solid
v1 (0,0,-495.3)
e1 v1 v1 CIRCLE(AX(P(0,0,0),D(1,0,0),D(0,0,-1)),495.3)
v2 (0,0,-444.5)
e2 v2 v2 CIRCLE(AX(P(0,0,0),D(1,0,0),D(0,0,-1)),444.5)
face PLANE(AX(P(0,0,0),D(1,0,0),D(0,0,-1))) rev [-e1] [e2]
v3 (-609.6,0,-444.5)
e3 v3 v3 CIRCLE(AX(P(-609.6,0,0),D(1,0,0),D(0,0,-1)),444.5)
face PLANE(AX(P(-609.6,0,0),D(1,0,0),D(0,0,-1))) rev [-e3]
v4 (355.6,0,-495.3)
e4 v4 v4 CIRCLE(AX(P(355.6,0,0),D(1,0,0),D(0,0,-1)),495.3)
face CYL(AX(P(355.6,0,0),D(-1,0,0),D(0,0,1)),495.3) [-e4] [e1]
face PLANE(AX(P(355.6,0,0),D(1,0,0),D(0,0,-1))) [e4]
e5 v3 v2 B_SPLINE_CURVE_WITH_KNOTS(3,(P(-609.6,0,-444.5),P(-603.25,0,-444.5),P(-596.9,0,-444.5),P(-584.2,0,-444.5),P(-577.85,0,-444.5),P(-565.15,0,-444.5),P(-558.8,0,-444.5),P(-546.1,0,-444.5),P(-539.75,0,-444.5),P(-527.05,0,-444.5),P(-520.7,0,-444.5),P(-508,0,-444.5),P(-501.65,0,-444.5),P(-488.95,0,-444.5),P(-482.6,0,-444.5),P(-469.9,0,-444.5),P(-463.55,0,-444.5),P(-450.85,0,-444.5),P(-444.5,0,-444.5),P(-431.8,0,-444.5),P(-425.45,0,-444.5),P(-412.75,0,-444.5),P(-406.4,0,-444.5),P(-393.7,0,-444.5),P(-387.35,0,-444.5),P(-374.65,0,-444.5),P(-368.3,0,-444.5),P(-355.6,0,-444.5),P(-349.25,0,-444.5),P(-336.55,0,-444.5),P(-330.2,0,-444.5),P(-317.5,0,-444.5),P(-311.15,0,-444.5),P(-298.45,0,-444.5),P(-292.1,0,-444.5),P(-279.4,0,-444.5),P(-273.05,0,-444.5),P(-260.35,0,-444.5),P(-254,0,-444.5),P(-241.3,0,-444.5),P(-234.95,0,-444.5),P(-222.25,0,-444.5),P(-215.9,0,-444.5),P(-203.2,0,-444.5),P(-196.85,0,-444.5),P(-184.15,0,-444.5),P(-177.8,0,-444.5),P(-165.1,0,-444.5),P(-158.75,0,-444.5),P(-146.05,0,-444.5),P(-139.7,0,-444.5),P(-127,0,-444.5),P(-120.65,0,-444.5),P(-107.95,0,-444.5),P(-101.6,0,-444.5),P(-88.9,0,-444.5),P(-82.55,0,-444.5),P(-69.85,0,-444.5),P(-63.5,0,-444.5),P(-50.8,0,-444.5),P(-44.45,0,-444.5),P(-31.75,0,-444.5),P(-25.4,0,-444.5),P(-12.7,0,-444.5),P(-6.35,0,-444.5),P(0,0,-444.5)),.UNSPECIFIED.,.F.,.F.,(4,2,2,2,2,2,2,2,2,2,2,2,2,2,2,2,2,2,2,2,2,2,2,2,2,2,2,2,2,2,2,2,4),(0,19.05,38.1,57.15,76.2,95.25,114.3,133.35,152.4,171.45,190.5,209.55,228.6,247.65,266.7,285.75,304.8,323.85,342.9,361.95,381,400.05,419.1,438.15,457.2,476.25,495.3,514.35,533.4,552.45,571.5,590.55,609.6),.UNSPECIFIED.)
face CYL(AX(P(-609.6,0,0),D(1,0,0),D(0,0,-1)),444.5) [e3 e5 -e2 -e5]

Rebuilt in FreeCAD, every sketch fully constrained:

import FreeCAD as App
import Part
import Sketcher
Q = App.Units.Quantity

doc = App.newDocument("Part")
body = doc.addObject("PartDesign::Body", "Body")

# Sketch on YZ plane
sketch1 = body.newObject("Sketcher::SketchObject", "Sketch")
sketch1.AttachmentSupport = (doc.getObject("YZ_Plane"), [""])
sketch1.MapMode = "FlatFace"
sketch1.addGeometry(Part.Circle(App.Vector(0, 0, 0), App.Vector(0, 0, 1), 495.3), False)
sketch1.addConstraint(Sketcher.Constraint("Coincident", 0, 3, -1, 1))
sketch1.addConstraint(Sketcher.Constraint("Diameter", 0, Q("39 in")))
pad1 = body.newObject("PartDesign::Pad", "Pad")
pad1.Profile = sketch1
pad1.Length = Q("14 in")

# Sketch on YZ plane
sketch2 = body.newObject("Sketcher::SketchObject", "Sketch001")
sketch2.AttachmentSupport = (doc.getObject("YZ_Plane"), [""])
sketch2.MapMode = "FlatFace"
sketch2.addGeometry(Part.Circle(App.Vector(0, 0, 0), App.Vector(0, 0, 1), 444.5), False)
sketch2.addConstraint(Sketcher.Constraint("Coincident", 0, 3, -1, 1))
sketch2.addConstraint(Sketcher.Constraint("Diameter", 0, Q("35 in")))
pad2 = body.newObject("PartDesign::Pad", "Pad001")
pad2.Profile = sketch2
pad2.Length = Q("24 in")
pad2.Reversed = True

doc.recompute()
